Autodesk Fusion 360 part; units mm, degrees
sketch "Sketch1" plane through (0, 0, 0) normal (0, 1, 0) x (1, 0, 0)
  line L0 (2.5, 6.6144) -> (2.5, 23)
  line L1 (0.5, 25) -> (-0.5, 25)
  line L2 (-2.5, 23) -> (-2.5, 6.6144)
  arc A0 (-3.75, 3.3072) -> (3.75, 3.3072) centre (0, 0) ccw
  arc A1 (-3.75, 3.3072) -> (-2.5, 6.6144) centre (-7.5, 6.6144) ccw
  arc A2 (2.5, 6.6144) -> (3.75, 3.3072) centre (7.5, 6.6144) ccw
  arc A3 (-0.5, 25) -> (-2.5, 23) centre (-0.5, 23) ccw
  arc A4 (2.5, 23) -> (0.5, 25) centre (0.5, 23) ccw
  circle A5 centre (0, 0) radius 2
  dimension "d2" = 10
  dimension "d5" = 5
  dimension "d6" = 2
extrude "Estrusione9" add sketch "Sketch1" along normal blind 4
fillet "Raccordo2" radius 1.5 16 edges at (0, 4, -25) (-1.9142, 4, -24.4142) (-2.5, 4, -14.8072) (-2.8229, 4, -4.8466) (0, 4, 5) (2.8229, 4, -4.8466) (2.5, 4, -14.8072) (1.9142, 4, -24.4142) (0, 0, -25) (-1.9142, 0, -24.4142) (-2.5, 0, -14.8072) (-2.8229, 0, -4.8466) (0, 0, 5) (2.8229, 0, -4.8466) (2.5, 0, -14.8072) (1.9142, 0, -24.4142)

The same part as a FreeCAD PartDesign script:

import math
import FreeCAD as App
import Part
import Sketcher

V = App.Vector
Q = App.Units.Quantity


def edges_at(feature, points):
    """Names of the edges that pass closest to the given points."""
    edges = feature.Shape.Edges
    near = lambda p: min(range(len(edges)), key=lambda i: edges[i].distToShape(Part.Vertex(*p))[0])
    return sorted({f"Edge{near(p) + 1}" for p in points})

doc = App.newDocument("Part")
body = doc.addObject("PartDesign::Body", "Body")

sketch1 = body.newObject("Sketcher::SketchObject", "Sketch")
sketch1.AttachmentSupport = (doc.getObject("XZ_Plane"), [""])
sketch1.MapMode = "FlatFace"
sketch1.addGeometry([
    Part.ArcOfCircle(Part.Circle(V(7.5, -6.6, 0), V(0, 0, 1), 5), math.radians(139), math.radians(180)),
    Part.LineSegment(V(2.5, -6.6, 0), V(2.5, -23, 0)),
    Part.ArcOfCircle(Part.Circle(V(0.5, -23, 0), V(0, 0, 1), 2), math.radians(-90), math.radians(0)),
    Part.LineSegment(V(0.5, -25, 0), V(-0.5, -25, 0)),
    Part.ArcOfCircle(Part.Circle(V(-0.5, -23, 0), V(0, 0, 1), 2), math.radians(180), math.radians(270)),
    Part.LineSegment(V(-2.5, -23, 0), V(-2.5, -6.6, 0)),
    Part.ArcOfCircle(Part.Circle(V(-7.5, -6.6, 0), V(0, 0, 1), 5), math.radians(0), math.radians(41)),
    Part.ArcOfCircle(Part.Circle(V(0, 0, 0), V(0, 0, 1), 5), math.radians(-41), math.radians(221)),
    Part.Circle(V(0, 0, 0), V(0, 0, 1), 2),
], False)
sketch1.addConstraint([
    Sketcher.Constraint("Tangent", 0, 2, 1, 1),
    Sketcher.Constraint("Tangent", 1, 2, 2, 2),
    Sketcher.Constraint("Tangent", 2, 1, 3, 1),
    Sketcher.Constraint("Tangent", 3, 2, 4, 2),
    Sketcher.Constraint("Tangent", 4, 1, 5, 1),
    Sketcher.Constraint("Tangent", 5, 2, 6, 1),
    Sketcher.Constraint("Tangent", 6, 2, 7, 2),
    Sketcher.Constraint("Tangent", 7, 1, 0, 1),
    Sketcher.Constraint("Vertical", 1),
    Sketcher.Constraint("Horizontal", 3),
    Sketcher.Constraint("Vertical", 5),
    Sketcher.Constraint("Coincident", 7, 3, -1, 1),
    Sketcher.Constraint("Coincident", 8, 3, -1, 1),
    Sketcher.Constraint("Equal", 2, 4),
    Sketcher.Constraint("Equal", 0, 6),
    Sketcher.Constraint("Equal", 6, 7),
    Sketcher.Constraint("Equal", 4, 8),
    Sketcher.Constraint("Horizontal", 0, 3, 6, 3),
    Sketcher.Constraint("Diameter", 8, Q("4 mm")),
    Sketcher.Constraint("Radius", 0, Q("5 mm")),
    Sketcher.Constraint("DistanceX", 6, 3, 0, 2, Q("10 mm")),
    Sketcher.Constraint("DistanceY", 2, 3, -1, 1, Q("23 mm")),
])
pad1 = body.newObject("PartDesign::Pad", "Pad")
pad1.Profile = sketch1
pad1.Length = 4
pad1.Reversed = True
doc.recompute()

fillet = body.newObject("PartDesign::Fillet", "Fillet")
fillet.Base = (pad1, edges_at(pad1, [
    (0, 4, -25),
    (-1.914, 4, -24.414),
    (-2.5, 4, -14.807),
    (-2.823, 4, -4.847),
    (0, 4, 5),
    (2.823, 4, -4.847),
    (2.5, 4, -14.807),
    (1.914, 4, -24.414),
    (0, 0, -25),
    (-1.914, 0, -24.414),
    (-2.5, 0, -14.807),
    (-2.823, 0, -4.847),
    (0, 0, 5),
    (2.823, 0, -4.847),
    (2.5, 0, -14.807),
    (1.914, 0, -24.414),
]))
fillet.Radius = 1.5

doc.recompute()
